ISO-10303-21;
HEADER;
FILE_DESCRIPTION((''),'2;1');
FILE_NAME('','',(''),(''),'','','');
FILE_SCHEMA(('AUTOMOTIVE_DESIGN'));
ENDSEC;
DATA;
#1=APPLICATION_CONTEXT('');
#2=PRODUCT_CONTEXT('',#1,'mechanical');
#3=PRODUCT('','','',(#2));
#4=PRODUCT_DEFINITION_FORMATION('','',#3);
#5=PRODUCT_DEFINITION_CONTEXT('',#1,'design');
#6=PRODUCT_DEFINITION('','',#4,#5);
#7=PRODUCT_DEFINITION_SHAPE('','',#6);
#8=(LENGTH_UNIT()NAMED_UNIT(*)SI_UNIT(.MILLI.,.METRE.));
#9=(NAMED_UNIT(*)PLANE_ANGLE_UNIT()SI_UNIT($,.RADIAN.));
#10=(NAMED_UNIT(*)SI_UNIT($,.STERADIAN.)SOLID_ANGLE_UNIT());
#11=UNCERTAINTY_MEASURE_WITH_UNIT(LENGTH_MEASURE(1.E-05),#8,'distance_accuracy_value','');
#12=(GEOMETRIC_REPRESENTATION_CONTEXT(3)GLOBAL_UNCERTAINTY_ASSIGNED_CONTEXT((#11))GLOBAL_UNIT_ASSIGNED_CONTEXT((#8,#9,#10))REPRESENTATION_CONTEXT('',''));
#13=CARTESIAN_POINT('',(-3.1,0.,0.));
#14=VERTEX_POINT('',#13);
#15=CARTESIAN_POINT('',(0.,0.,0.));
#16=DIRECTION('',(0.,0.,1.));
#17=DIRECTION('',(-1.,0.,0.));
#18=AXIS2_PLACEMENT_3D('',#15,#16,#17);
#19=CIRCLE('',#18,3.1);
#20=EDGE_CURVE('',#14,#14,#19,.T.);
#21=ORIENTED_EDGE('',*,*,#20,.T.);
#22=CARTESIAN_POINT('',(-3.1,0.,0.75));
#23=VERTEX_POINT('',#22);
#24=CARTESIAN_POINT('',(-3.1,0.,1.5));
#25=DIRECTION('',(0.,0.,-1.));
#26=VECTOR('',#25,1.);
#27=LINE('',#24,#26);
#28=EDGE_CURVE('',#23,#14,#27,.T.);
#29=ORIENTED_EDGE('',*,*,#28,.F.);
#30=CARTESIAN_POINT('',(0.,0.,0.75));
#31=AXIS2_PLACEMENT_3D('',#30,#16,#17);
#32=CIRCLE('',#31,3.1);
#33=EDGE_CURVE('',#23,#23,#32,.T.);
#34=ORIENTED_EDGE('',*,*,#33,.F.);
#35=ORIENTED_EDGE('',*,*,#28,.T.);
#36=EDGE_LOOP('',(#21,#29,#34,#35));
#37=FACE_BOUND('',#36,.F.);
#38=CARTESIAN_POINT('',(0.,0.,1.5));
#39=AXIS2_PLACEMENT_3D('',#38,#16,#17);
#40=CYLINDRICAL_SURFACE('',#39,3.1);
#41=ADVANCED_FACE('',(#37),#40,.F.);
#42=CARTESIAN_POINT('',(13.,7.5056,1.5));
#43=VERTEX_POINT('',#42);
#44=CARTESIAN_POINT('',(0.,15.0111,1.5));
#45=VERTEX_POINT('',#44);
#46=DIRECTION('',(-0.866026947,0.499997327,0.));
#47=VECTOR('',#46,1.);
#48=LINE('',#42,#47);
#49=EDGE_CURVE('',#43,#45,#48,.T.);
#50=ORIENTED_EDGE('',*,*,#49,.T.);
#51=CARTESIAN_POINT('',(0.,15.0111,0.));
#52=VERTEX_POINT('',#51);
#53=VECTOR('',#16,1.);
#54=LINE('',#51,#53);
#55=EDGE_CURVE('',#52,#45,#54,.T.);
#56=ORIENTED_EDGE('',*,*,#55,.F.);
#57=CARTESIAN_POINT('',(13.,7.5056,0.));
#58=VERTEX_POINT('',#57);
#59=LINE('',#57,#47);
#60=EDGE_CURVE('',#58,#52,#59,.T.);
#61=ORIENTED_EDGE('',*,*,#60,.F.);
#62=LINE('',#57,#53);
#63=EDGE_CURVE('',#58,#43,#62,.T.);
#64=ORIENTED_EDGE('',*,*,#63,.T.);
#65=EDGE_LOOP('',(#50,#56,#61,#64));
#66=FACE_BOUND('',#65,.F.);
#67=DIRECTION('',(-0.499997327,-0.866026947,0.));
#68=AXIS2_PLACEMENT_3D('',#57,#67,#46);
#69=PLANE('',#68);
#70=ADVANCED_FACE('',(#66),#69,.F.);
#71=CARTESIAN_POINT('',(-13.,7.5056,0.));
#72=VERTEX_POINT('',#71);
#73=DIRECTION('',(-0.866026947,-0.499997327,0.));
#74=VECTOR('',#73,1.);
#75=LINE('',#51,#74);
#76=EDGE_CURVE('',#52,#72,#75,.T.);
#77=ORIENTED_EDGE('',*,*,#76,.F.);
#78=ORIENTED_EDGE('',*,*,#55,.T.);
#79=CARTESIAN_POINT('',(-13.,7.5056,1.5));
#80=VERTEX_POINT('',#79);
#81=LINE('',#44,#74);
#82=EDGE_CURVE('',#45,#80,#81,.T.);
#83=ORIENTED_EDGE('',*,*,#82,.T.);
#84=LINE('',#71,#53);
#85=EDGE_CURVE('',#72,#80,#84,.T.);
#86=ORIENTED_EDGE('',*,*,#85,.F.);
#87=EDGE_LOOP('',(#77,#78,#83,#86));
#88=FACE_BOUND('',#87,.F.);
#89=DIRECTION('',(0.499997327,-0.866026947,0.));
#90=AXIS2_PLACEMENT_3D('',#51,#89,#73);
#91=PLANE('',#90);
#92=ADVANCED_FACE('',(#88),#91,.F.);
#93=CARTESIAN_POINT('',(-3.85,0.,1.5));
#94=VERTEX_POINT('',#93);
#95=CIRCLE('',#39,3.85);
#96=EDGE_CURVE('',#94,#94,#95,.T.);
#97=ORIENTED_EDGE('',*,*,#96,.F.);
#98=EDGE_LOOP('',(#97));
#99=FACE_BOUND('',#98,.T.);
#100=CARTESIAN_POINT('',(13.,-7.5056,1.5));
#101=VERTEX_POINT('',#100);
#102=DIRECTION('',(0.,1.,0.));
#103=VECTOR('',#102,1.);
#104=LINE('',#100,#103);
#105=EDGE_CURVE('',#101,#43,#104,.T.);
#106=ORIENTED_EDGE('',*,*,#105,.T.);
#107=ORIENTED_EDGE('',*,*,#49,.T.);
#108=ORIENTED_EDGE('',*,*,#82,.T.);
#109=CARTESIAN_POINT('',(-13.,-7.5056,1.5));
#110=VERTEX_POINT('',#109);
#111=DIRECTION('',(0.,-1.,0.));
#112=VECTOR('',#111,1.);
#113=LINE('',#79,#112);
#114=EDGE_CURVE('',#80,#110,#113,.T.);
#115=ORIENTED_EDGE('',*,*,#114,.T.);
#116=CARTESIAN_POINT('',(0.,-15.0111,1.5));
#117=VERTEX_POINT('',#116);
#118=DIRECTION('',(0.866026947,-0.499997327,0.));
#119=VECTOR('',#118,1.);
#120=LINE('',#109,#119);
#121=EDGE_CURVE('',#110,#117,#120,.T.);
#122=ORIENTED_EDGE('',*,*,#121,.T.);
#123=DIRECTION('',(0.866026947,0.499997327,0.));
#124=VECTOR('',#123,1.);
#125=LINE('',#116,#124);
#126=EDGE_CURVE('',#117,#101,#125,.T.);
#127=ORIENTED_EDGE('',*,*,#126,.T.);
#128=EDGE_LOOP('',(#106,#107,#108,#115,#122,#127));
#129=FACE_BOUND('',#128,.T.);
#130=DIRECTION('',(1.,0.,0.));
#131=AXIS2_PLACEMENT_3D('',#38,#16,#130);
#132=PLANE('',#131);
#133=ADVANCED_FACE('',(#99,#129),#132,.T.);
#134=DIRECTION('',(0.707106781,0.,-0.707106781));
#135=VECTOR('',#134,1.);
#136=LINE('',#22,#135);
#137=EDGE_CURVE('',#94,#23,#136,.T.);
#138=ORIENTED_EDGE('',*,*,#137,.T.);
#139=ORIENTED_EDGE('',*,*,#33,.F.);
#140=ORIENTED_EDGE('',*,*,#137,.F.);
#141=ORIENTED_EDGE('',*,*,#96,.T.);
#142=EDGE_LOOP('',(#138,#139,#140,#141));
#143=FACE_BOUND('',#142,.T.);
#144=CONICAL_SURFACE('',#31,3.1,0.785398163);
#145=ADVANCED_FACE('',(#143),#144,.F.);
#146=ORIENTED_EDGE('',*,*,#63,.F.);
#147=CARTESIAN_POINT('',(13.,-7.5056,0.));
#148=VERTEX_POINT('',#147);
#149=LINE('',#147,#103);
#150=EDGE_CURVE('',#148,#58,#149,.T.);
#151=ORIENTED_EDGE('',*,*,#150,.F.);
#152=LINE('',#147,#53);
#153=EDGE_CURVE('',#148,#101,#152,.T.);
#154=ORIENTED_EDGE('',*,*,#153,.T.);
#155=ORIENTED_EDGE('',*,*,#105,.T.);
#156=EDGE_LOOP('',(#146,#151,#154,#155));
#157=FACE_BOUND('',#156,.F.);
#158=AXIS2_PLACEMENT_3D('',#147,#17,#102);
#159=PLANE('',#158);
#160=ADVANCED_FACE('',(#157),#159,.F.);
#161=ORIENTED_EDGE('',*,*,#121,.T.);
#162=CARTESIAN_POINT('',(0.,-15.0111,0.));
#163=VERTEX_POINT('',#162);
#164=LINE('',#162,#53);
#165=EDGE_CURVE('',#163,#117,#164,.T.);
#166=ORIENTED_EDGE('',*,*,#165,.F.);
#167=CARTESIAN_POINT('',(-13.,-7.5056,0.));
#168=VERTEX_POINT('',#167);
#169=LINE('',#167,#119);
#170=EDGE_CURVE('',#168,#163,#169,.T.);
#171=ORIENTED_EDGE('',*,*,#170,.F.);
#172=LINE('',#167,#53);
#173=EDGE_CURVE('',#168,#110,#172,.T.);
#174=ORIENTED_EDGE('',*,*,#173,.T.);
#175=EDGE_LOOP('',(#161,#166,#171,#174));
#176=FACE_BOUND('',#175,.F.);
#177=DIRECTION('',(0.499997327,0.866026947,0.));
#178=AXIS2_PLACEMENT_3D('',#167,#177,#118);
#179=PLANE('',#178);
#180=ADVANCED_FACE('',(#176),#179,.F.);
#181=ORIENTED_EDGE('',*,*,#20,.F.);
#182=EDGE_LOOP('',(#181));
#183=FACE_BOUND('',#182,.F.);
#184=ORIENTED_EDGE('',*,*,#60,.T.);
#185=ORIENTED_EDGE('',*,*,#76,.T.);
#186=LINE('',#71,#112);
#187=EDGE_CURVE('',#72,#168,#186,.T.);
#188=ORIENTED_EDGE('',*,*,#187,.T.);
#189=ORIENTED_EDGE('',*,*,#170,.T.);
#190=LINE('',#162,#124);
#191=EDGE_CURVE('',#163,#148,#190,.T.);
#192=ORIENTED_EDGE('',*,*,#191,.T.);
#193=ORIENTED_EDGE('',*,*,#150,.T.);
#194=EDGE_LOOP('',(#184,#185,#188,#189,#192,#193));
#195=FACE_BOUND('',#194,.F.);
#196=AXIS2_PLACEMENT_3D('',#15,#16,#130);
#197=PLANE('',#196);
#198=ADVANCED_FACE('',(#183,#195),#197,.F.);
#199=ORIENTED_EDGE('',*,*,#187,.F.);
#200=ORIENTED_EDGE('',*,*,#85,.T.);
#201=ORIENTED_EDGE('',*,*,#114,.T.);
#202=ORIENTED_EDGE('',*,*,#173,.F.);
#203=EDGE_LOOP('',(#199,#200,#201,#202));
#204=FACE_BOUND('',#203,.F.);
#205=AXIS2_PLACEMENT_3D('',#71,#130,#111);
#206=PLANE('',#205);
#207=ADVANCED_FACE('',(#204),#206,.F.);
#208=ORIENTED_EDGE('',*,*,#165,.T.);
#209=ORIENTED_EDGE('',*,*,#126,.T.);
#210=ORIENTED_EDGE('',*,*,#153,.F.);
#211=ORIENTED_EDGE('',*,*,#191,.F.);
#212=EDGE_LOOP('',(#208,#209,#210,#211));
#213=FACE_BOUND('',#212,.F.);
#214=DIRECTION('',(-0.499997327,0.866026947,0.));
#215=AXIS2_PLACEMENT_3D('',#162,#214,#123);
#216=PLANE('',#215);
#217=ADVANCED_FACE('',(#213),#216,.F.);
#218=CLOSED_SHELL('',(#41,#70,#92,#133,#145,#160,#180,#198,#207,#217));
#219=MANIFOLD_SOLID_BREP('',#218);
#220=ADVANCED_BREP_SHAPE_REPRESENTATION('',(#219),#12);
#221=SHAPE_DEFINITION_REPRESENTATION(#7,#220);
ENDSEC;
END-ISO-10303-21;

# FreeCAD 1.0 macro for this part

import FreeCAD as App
import Part
import Sketcher
from FreeCAD import Vector
Q = App.Units.Quantity


def edges_at(feature, points):
    """Names of the edges that pass closest to the given points."""
    edges = feature.Shape.Edges
    near = lambda p: min(range(len(edges)), key=lambda i: edges[i].distToShape(Part.Vertex(*p))[0])
    return sorted({f"Edge{near(p) + 1}" for p in points})


def add_polygon(sketch, points):
    """Adds a closed chain of lines whose ends are joined by coincident constraints."""
    first, n = sketch.GeometryCount, len(points)
    for a, b in zip(points, points[1:] + points[:1]):
        sketch.addGeometry(Part.LineSegment(App.Vector(*a, 0), App.Vector(*b, 0)), False)
    for i in range(n):
        sketch.addConstraint(Sketcher.Constraint("Coincident", first + i, 2, first + (i + 1) % n, 1))

doc = App.newDocument("Part")
body = doc.addObject("PartDesign::Body", "Body")

# Sketch on XY plane
sketch1 = body.newObject("Sketcher::SketchObject", "Sketch")
sketch1.AttachmentSupport = (doc.getObject("XY_Plane"), [""])
sketch1.MapMode = "FlatFace"
add_polygon(sketch1, [(13, -8), (13, 8), (0, 15), (-13, 8), (-13, -8), (0, -15)])  # lines 0-5
sketch1.addConstraint([
    Sketcher.Constraint("Vertical", 0),
    Sketcher.Constraint("Vertical", 3),
    Sketcher.Constraint("Symmetric", 0, 2, 3, 2, -1, 1),
    Sketcher.Constraint("Symmetric", 1, 2, 4, 2, -1, 1),
    Sketcher.Constraint("PointOnObject", 1, 2, -2),
    Sketcher.Constraint("Parallel", 2, 5),
    Sketcher.Constraint("Horizontal", 0, 2, 2, 2),
    Sketcher.Constraint("DistanceX", -1, 1, 0, 2, Q("13 mm")),
    Sketcher.Constraint("Angle", 1, Q("150.0002 deg")),
    Sketcher.Constraint("DistanceY", 0, 1, 0, 2, Q("15.0112 mm")),
])
pad1 = body.newObject("PartDesign::Pad", "Pad")
pad1.Profile = sketch1
pad1.Length = 1.5

# Sketch on XY plane
sketch2 = body.newObject("Sketcher::SketchObject", "Sketch001")
sketch2.AttachmentSupport = (doc.getObject("XY_Plane"), [""])
sketch2.MapMode = "FlatFace"
sketch2.AttachmentOffset = App.Placement(Vector(0, 0, 1.5), App.Rotation())
sketch2.addGeometry(Part.Circle(Vector(0, 0, 0), Vector(0, 0, 1), 3.1), False)
sketch2.addConstraint([
    Sketcher.Constraint("Coincident", 0, 3, -1, 1),
    Sketcher.Constraint("Diameter", 0, Q("6.2 mm")),
])
pocket1 = body.newObject("PartDesign::Pocket", "Pocket")
pocket1.Profile = sketch2
pocket1.Length = 13
doc.recompute()

chamfer = body.newObject("PartDesign::Chamfer", "Chamfer")
chamfer.Base = (pocket1, edges_at(pocket1, [(2.89, -1.121, 1.5)]))
chamfer.Size = 0.75

doc.recompute()
